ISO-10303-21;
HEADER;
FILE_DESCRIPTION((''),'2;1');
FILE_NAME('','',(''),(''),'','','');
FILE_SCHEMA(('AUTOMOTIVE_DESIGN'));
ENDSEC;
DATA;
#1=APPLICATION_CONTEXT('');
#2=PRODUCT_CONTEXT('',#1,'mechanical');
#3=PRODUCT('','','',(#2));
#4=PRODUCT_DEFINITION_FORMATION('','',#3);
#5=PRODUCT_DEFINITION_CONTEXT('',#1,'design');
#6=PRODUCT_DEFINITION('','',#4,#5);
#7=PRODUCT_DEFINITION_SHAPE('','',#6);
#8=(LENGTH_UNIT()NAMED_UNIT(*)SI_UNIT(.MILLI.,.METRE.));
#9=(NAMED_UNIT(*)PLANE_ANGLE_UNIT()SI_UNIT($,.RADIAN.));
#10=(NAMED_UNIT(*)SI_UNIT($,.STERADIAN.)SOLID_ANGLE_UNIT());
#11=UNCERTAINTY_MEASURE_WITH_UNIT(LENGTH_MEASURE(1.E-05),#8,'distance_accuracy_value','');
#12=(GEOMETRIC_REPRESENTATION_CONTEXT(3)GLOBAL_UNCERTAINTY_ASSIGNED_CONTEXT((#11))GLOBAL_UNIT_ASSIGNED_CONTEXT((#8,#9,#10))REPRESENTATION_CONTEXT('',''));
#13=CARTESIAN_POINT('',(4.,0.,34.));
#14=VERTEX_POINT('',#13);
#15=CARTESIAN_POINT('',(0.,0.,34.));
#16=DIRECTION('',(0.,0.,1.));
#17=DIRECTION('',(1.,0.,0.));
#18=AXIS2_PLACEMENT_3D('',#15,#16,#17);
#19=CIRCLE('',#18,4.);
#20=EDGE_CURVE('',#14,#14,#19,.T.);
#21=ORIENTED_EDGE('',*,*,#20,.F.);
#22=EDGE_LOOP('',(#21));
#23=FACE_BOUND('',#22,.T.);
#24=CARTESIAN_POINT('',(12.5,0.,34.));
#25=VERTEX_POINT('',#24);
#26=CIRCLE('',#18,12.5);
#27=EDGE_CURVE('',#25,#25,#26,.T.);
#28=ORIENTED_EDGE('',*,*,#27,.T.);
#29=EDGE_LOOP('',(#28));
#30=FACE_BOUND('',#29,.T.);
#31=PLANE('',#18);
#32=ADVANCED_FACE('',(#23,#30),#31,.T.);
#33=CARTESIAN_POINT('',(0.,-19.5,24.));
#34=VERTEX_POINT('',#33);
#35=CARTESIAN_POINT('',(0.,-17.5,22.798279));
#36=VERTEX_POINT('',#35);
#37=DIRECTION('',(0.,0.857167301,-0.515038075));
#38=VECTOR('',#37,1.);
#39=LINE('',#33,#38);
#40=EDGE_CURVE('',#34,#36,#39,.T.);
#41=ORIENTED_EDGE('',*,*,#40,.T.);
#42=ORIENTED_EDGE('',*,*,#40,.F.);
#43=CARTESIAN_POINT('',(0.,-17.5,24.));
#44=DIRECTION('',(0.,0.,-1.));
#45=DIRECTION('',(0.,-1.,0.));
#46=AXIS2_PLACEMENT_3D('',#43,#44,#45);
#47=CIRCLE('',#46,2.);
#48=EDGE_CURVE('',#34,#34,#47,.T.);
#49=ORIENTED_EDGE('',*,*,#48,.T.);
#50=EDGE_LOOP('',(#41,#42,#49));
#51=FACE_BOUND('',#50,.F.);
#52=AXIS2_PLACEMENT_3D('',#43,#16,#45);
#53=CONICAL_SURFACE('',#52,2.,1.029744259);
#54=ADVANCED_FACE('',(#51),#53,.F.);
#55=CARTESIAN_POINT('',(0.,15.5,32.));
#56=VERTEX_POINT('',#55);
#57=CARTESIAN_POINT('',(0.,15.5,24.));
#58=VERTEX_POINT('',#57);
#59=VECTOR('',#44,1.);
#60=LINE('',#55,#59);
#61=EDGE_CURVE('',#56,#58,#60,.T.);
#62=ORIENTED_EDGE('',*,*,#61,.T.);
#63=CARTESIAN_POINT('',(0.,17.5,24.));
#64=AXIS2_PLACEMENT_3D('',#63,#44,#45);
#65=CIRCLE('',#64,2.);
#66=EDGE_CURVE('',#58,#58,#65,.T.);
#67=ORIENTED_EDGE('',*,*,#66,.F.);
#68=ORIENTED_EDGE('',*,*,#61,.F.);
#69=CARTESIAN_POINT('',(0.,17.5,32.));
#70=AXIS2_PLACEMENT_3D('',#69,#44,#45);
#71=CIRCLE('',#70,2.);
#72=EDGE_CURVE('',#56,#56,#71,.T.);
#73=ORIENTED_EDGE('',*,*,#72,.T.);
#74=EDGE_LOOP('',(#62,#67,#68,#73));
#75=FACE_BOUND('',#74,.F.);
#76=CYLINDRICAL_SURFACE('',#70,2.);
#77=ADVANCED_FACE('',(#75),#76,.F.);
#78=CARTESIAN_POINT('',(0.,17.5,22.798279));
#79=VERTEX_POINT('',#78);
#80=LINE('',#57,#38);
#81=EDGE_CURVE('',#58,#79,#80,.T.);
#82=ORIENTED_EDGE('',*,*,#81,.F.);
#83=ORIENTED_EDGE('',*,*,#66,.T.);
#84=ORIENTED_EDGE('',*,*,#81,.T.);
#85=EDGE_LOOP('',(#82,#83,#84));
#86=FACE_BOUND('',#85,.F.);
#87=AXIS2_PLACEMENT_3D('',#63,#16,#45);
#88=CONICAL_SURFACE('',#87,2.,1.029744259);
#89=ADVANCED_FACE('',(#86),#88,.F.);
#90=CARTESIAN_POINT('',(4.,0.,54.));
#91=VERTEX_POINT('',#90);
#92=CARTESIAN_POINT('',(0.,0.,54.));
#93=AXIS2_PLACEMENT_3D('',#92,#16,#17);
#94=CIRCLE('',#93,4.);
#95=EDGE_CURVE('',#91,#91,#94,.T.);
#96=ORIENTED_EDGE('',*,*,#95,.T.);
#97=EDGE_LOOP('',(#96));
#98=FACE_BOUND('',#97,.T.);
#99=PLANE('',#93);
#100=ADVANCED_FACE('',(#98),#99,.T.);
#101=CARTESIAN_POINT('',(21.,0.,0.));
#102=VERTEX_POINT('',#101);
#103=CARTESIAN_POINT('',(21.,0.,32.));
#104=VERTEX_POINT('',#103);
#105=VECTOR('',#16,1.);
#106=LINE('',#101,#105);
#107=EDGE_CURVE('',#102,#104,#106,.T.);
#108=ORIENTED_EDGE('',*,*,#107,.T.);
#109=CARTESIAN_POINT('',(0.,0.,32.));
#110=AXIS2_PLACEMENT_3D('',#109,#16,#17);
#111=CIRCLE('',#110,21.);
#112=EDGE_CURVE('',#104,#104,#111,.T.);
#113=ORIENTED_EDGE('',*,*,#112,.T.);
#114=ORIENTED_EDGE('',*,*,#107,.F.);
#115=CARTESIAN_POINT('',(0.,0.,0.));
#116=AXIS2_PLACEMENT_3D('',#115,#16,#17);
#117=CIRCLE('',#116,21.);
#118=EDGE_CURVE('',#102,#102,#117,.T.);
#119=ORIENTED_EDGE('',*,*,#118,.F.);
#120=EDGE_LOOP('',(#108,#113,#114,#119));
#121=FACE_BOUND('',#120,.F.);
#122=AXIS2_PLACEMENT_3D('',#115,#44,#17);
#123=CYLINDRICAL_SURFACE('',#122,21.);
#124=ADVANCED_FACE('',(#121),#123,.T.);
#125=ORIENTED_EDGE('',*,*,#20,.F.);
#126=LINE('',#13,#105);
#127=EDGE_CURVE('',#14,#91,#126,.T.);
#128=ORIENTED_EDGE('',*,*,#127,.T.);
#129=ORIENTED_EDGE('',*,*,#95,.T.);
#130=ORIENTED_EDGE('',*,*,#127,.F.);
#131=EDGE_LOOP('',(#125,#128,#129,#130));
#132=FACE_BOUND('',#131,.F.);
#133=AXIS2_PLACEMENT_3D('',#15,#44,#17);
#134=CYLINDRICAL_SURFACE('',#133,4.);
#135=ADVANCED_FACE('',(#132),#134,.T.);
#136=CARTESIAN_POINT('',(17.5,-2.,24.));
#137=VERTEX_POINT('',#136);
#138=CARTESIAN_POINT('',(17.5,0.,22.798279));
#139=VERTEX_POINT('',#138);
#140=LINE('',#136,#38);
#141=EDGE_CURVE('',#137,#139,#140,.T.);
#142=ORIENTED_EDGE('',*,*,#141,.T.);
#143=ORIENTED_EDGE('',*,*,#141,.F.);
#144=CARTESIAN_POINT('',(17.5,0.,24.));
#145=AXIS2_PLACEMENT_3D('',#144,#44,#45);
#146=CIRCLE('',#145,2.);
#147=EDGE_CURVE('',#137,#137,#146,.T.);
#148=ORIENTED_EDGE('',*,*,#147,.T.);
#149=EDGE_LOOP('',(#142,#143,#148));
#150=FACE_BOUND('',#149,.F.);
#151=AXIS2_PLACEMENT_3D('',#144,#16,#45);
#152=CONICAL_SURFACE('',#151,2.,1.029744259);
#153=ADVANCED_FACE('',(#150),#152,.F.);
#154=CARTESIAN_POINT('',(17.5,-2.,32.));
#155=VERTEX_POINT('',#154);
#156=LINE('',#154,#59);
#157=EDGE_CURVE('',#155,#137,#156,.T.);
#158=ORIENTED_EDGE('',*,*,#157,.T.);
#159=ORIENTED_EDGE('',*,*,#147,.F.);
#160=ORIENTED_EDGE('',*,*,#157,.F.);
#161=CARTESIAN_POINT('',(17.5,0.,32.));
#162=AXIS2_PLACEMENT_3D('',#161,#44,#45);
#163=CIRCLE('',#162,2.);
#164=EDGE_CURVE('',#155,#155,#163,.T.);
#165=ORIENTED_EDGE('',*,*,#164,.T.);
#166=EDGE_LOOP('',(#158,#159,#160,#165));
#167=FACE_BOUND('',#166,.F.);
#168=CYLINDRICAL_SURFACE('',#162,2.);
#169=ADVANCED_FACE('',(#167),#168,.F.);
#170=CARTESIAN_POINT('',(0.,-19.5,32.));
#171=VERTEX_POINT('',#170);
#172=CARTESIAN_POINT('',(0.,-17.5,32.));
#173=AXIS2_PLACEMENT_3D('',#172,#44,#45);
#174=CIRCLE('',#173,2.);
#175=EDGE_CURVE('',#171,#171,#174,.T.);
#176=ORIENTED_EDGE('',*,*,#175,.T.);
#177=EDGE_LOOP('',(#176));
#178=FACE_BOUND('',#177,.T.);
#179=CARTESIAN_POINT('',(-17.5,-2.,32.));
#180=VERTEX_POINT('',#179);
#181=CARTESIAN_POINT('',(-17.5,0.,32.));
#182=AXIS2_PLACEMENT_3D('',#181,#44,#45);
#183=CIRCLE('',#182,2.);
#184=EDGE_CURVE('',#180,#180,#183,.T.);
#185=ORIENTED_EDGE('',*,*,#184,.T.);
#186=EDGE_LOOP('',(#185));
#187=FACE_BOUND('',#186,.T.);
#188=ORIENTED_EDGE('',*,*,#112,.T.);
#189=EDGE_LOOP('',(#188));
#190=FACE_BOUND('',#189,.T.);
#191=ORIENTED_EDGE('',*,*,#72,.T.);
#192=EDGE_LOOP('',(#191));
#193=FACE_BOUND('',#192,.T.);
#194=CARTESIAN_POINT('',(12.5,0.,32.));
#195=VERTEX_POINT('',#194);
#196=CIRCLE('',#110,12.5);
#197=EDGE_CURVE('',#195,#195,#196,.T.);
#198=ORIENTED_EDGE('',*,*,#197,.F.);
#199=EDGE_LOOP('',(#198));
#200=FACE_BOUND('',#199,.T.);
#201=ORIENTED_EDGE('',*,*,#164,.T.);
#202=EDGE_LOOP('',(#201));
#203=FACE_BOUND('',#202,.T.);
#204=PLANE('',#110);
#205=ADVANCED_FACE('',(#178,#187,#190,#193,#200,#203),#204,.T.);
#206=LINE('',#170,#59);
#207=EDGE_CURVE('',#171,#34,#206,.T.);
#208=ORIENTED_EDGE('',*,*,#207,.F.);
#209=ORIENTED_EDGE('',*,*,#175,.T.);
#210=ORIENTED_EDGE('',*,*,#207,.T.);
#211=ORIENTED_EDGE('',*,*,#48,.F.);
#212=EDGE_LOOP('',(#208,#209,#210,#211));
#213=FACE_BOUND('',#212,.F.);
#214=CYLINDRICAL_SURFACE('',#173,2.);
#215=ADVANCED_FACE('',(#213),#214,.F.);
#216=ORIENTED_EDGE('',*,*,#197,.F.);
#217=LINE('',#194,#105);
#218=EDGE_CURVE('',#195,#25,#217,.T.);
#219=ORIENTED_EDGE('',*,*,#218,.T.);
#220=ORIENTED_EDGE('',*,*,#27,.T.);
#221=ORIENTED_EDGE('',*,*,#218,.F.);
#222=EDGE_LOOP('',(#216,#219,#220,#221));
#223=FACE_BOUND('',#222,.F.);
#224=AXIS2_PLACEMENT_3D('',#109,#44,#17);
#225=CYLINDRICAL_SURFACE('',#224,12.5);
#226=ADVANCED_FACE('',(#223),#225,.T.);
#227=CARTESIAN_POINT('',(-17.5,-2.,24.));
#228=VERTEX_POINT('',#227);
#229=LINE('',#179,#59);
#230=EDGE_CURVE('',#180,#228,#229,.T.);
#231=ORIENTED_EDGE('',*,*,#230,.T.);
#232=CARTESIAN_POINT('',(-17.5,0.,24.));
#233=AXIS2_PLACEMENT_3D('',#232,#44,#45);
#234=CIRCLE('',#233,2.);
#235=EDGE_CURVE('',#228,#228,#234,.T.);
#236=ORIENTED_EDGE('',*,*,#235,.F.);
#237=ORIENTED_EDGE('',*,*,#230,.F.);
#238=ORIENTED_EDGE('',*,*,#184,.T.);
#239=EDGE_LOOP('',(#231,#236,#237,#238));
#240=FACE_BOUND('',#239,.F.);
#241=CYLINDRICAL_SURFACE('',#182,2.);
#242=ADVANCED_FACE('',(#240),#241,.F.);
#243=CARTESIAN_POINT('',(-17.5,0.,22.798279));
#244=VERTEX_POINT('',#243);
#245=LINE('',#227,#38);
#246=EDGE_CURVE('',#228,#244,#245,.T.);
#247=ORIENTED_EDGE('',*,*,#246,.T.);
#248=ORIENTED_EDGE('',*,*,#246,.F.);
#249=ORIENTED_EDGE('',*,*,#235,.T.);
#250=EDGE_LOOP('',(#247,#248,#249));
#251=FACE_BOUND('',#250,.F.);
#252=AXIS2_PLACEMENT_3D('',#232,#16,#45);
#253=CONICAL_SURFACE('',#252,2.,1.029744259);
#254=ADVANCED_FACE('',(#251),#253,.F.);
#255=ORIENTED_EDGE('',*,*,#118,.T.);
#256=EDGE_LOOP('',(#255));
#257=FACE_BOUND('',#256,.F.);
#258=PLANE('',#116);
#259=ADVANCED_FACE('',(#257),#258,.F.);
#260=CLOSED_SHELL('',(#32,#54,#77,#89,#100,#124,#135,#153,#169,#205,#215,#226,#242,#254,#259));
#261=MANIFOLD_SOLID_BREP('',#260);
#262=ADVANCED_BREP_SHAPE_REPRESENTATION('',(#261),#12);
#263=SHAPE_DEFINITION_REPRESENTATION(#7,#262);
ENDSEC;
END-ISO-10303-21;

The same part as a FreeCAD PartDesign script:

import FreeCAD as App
import Part
import Sketcher

V = App.Vector
Q = App.Units.Quantity

doc = App.newDocument("Part")
body = doc.addObject("PartDesign::Body", "Body")

sketch1 = doc.addObject("Sketcher::SketchObject", "Sketch")
body.addObject(sketch1)
sketch1.AttachmentSupport = (doc.XY_Plane, [""])
sketch1.MapMode = "FlatFace"
sketch1.addGeometry(Part.Circle(V(0, 0, 0), V(0, 0, 1), 21), False)
sketch1.addConstraint([
    Sketcher.Constraint("Coincident", 0, 3, -1, 1),
    Sketcher.Constraint("Diameter", 0, Q("42 mm")),
])
pad1 = doc.addObject("PartDesign::Pad", "Pad")
body.addObject(pad1)
pad1.Profile = sketch1
pad1.Length = 32

sketch2 = doc.addObject("Sketcher::SketchObject", "Sketch001")
body.addObject(sketch2)
sketch2.AttachmentSupport = (doc.XY_Plane, [""])
sketch2.MapMode = "FlatFace"
sketch2.AttachmentOffset = App.Placement(V(0, 0, 32), App.Rotation())
sketch2.addGeometry(Part.Circle(V(0, 0, 0), V(0, 0, 1), 12), False)
sketch2.addConstraint([
    Sketcher.Constraint("Coincident", 0, 3, -1, 1),
    Sketcher.Constraint("Diameter", 0, Q("25 mm")),
])
pad2 = doc.addObject("PartDesign::Pad", "Pad001")
body.addObject(pad2)
pad2.Profile = sketch2
pad2.Length = 2

sketch3 = doc.addObject("Sketcher::SketchObject", "Sketch002")
body.addObject(sketch3)
sketch3.AttachmentSupport = (doc.XY_Plane, [""])
sketch3.MapMode = "FlatFace"
sketch3.AttachmentOffset = App.Placement(V(0, 0, 34), App.Rotation())
sketch3.addGeometry(Part.Circle(V(0, 0, 0), V(0, 0, 1), 4), False)
sketch3.addConstraint([
    Sketcher.Constraint("Coincident", 0, 3, -1, 1),
    Sketcher.Constraint("Diameter", 0, Q("8 mm")),
])
pad3 = doc.addObject("PartDesign::Pad", "Pad002")
body.addObject(pad3)
pad3.Profile = sketch3
pad3.Length = 20

sketch4 = doc.addObject("Sketcher::SketchObject", "Sketch003")
body.addObject(sketch4)
sketch4.AttachmentSupport = (doc.XY_Plane, [""])
sketch4.MapMode = "FlatFace"
sketch4.AttachmentOffset = App.Placement(V(0, 0, 32), App.Rotation())
sketch4.addGeometry([
    Part.Circle(V(0, 17.5, 0), V(0, 0, 1), 2),
    Part.Circle(V(-17.5, 0, 0), V(0, 0, 1), 2),
    Part.Circle(V(0, -17.5, 0), V(0, 0, 1), 2),
    Part.Circle(V(17.5, 0, 0), V(0, 0, 1), 2),
], False)
sketch4.addConstraint([
    Sketcher.Constraint("Equal", 0, 1),
    Sketcher.Constraint("Equal", 1, 2),
    Sketcher.Constraint("Equal", 2, 3),
    Sketcher.Constraint("Symmetric", 0, 3, 2, 3, -1, 1),
    Sketcher.Constraint("Symmetric", 1, 3, 3, 3, -1, 1),
    Sketcher.Constraint("PointOnObject", 0, 3, -2),
    Sketcher.Constraint("PointOnObject", 1, 3, -1),
    Sketcher.Constraint("Diameter", 0, Q("4 mm")),
    Sketcher.Constraint("DistanceY", 2, 3, 0, 3, Q("35 mm")),
    Sketcher.Constraint("DistanceX", 1, 3, 3, 3, Q("35 mm")),
])
doc.recompute()
hole = doc.addObject("PartDesign::Hole", "Hole")
body.addObject(hole)
hole.Profile = sketch4
hole.ThreadType = "None"
hole.Diameter = 4
hole.DepthType = "Dimension"
hole.Depth = 8
hole.DrillPoint = "Angled"
hole.DrillPointAngle = 118

doc.recompute()
